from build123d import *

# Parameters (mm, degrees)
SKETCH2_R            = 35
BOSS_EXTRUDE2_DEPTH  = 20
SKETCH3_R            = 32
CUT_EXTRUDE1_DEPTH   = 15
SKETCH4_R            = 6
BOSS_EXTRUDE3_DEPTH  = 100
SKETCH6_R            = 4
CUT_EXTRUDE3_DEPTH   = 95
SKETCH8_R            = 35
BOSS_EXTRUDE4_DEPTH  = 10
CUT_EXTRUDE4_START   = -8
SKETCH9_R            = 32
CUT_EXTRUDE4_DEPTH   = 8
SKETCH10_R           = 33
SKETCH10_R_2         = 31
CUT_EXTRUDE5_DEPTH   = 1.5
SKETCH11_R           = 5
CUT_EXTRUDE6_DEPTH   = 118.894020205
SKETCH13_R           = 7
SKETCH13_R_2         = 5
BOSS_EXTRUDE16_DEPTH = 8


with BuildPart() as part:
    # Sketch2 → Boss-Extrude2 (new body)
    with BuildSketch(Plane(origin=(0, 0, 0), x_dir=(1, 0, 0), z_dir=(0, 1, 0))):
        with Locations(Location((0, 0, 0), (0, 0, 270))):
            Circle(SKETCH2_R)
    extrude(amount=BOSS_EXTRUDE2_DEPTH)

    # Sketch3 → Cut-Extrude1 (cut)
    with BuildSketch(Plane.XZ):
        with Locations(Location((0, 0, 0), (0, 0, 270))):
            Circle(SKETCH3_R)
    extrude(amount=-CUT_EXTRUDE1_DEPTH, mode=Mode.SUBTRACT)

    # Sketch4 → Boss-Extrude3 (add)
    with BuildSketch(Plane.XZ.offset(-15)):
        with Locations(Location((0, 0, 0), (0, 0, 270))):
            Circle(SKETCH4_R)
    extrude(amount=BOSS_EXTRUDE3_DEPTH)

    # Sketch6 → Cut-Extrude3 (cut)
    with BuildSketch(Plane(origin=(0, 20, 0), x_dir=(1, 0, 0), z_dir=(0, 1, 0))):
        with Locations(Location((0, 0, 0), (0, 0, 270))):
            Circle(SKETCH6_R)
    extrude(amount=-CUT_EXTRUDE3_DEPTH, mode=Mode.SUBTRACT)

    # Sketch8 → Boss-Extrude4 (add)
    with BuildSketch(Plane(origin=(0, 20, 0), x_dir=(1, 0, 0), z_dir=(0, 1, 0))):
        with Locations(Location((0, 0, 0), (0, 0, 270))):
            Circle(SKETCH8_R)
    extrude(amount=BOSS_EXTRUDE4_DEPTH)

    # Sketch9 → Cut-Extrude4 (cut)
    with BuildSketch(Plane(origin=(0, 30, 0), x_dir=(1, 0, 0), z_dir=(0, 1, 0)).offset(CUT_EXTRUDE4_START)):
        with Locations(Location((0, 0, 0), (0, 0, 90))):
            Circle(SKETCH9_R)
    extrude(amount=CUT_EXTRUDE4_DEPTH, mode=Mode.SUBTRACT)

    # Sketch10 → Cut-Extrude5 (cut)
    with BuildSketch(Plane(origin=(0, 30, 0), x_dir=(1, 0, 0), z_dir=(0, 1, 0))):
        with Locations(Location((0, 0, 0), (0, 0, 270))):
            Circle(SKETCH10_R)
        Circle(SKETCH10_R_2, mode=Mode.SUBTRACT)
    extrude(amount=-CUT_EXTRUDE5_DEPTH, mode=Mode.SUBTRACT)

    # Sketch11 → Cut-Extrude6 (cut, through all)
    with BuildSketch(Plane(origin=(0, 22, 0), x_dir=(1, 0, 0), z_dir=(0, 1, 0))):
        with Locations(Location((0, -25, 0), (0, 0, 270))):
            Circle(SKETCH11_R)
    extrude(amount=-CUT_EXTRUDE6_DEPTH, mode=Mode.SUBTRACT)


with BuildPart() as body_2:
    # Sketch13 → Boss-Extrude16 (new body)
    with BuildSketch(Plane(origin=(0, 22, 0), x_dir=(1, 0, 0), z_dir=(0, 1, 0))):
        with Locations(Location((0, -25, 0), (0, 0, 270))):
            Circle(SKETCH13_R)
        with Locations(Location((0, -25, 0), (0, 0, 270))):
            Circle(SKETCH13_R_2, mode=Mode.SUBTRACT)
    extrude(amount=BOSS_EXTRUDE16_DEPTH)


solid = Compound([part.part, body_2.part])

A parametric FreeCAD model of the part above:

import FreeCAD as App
import Part
import Sketcher
from FreeCAD import Vector

doc = App.newDocument("Part")
body = doc.addObject("PartDesign::Body", "Body")

# Sketch on XZ plane
sketch1 = body.newObject("Sketcher::SketchObject", "Sketch")
sketch1.AttachmentSupport = (doc.getObject("XZ_Plane"), [""])
sketch1.MapMode = "FlatFace"
sketch1.addGeometry(Part.Circle(Vector(0, 0, 0), Vector(0, 0, 1), 35), False)
sketch1.addConstraint(Sketcher.Constraint("Coincident", 0, 3, -1, 1))
sketch1.addConstraint(Sketcher.Constraint("Diameter", 0, 70.0))
pad1 = body.newObject("PartDesign::Pad", "Pad")
pad1.Profile = sketch1
pad1.Length = 20
pad1.Reversed = True

# Sketch on XZ plane
sketch2 = body.newObject("Sketcher::SketchObject", "Sketch001")
sketch2.AttachmentSupport = (doc.getObject("XZ_Plane"), [""])
sketch2.MapMode = "FlatFace"
sketch2.addGeometry(Part.Circle(Vector(0, 0, 0), Vector(0, 0, 1), 32), False)
sketch2.addConstraint(Sketcher.Constraint("Coincident", 0, 3, -1, 1))
sketch2.addConstraint(Sketcher.Constraint("Diameter", 0, 64.0))
pocket1 = body.newObject("PartDesign::Pocket", "Pocket")
pocket1.Profile = sketch2
pocket1.Length = 15

# Sketch on XZ plane
sketch3 = body.newObject("Sketcher::SketchObject", "Sketch002")
sketch3.AttachmentSupport = (doc.getObject("XZ_Plane"), [""])
sketch3.MapMode = "FlatFace"
sketch3.AttachmentOffset = App.Placement(Vector(0, 0, -15), App.Rotation())
sketch3.addGeometry(Part.Circle(Vector(0, 0, 0), Vector(0, 0, 1), 6), False)
sketch3.addConstraint(Sketcher.Constraint("Coincident", 0, 3, -1, 1))
sketch3.addConstraint(Sketcher.Constraint("Diameter", 0, 12.0))
pad2 = body.newObject("PartDesign::Pad", "Pad001")
pad2.Profile = sketch3
pad2.Length = 100

# Sketch on XZ plane
sketch4 = body.newObject("Sketcher::SketchObject", "Sketch003")
sketch4.AttachmentSupport = (doc.getObject("XZ_Plane"), [""])
sketch4.MapMode = "FlatFace"
sketch4.AttachmentOffset = App.Placement(Vector(0, 0, -20), App.Rotation())
sketch4.addGeometry(Part.Circle(Vector(0, 0, 0), Vector(0, 0, 1), 4), False)
sketch4.addConstraint(Sketcher.Constraint("Coincident", 0, 3, -1, 1))
sketch4.addConstraint(Sketcher.Constraint("Diameter", 0, 8.0))
pocket2 = body.newObject("PartDesign::Pocket", "Pocket001")
pocket2.Profile = sketch4
pocket2.Length = 95
pocket2.Reversed = True

# Sketch on XZ plane
sketch5 = body.newObject("Sketcher::SketchObject", "Sketch004")
sketch5.AttachmentSupport = (doc.getObject("XZ_Plane"), [""])
sketch5.MapMode = "FlatFace"
sketch5.AttachmentOffset = App.Placement(Vector(0, 0, -20), App.Rotation())
sketch5.addGeometry(Part.Circle(Vector(0, 0, 0), Vector(0, 0, 1), 35), False)
sketch5.addConstraint(Sketcher.Constraint("Coincident", 0, 3, -1, 1))
sketch5.addConstraint(Sketcher.Constraint("Diameter", 0, 70.0))
pad3 = body.newObject("PartDesign::Pad", "Pad002")
pad3.Profile = sketch5
pad3.Length = 10
pad3.Reversed = True

# Sketch on XZ plane
sketch6 = body.newObject("Sketcher::SketchObject", "Sketch005")
sketch6.AttachmentSupport = (doc.getObject("XZ_Plane"), [""])
sketch6.MapMode = "FlatFace"
sketch6.AttachmentOffset = App.Placement(Vector(0, 0, -22), App.Rotation())
sketch6.addGeometry(Part.Circle(Vector(0, 0, 0), Vector(0, 0, 1), 32), False)
sketch6.addConstraint(Sketcher.Constraint("Coincident", 0, 3, -1, 1))
sketch6.addConstraint(Sketcher.Constraint("Diameter", 0, 64.0))
pocket3 = body.newObject("PartDesign::Pocket", "Pocket002")
pocket3.Profile = sketch6
pocket3.Length = 8

# Sketch on XZ plane
sketch7 = body.newObject("Sketcher::SketchObject", "Sketch006")
sketch7.AttachmentSupport = (doc.getObject("XZ_Plane"), [""])
sketch7.MapMode = "FlatFace"
sketch7.AttachmentOffset = App.Placement(Vector(0, 0, -30), App.Rotation())
sketch7.addGeometry(Part.Circle(Vector(0, 0, 0), Vector(0, 0, 1), 33), False)
sketch7.addGeometry(Part.Circle(Vector(0, 0, 0), Vector(0, 0, 1), 31), False)
sketch7.addConstraint(Sketcher.Constraint("Coincident", 0, 3, -1, 1))
sketch7.addConstraint(Sketcher.Constraint("Coincident", 1, 3, -1, 1))
sketch7.addConstraint(Sketcher.Constraint("Diameter", 0, 66.0))
sketch7.addConstraint(Sketcher.Constraint("Diameter", 1, 62.0))
pocket4 = body.newObject("PartDesign::Pocket", "Pocket003")
pocket4.Profile = sketch7
pocket4.Length = 1.5
pocket4.Reversed = True

# Sketch on XZ plane
sketch8 = body.newObject("Sketcher::SketchObject", "Sketch007")
sketch8.AttachmentSupport = (doc.getObject("XZ_Plane"), [""])
sketch8.MapMode = "FlatFace"
sketch8.AttachmentOffset = App.Placement(Vector(0, 0, -22), App.Rotation())
sketch8.addGeometry(Part.Circle(Vector(0, 25, 0), Vector(0, 0, 1), 5), False)
sketch8.addConstraint(Sketcher.Constraint("PointOnObject", 0, 3, -2))
sketch8.addConstraint(Sketcher.Constraint("Diameter", 0, 10.0))
sketch8.addConstraint(Sketcher.Constraint("DistanceY", -1, 1, 0, 3, 25.0))
pocket5 = body.newObject("PartDesign::Pocket", "Pocket004")
pocket5.Profile = sketch8
pocket5.Type = "ThroughAll"
pocket5.Reversed = True
body2 = doc.addObject("PartDesign::Body", "Body001")

# Sketch on XZ plane
sketch9 = body2.newObject("Sketcher::SketchObject", "Sketch008")
sketch9.AttachmentSupport = (doc.getObject("XZ_Plane001"), [""])
sketch9.MapMode = "FlatFace"
sketch9.AttachmentOffset = App.Placement(Vector(0, 0, -22), App.Rotation())
sketch9.addGeometry(Part.Circle(Vector(0, 25, 0), Vector(0, 0, 1), 7), False)
sketch9.addGeometry(Part.Circle(Vector(0, 25, 0), Vector(0, 0, 1), 5), False)
sketch9.addConstraint(Sketcher.Constraint("Coincident", 1, 3, 0, 3))
sketch9.addConstraint(Sketcher.Constraint("PointOnObject", 0, 3, -2))
sketch9.addConstraint(Sketcher.Constraint("Diameter", 0, 14.0))
sketch9.addConstraint(Sketcher.Constraint("Diameter", 1, 10.0))
sketch9.addConstraint(Sketcher.Constraint("DistanceY", -1, 1, 0, 3, 25.0))
pad4 = body2.newObject("PartDesign::Pad", "Pad003")
pad4.Profile = sketch9
pad4.Length = 8
pad4.Reversed = True

doc.recompute()
